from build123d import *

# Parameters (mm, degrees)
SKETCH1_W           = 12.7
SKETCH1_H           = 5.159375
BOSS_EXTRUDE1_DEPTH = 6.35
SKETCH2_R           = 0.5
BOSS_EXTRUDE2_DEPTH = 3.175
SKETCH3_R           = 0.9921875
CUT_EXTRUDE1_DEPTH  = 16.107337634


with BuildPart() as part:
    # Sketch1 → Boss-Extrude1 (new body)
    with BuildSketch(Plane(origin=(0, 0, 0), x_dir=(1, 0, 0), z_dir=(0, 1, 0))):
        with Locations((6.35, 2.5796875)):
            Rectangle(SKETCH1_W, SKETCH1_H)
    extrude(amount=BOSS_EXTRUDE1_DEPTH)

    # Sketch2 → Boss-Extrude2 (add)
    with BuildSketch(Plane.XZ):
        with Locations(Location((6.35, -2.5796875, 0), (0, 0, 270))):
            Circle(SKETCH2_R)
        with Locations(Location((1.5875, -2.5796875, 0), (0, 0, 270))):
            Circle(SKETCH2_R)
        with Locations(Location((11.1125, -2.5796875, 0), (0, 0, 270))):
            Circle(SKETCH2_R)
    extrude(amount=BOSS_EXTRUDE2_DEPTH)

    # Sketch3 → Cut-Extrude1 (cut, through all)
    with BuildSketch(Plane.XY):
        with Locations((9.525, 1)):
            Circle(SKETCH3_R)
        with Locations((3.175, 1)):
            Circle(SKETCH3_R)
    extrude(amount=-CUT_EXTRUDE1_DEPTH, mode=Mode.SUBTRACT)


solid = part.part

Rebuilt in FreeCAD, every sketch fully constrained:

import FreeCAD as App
import Part
import Sketcher
from FreeCAD import Vector
Q = App.Units.Quantity


def add_polygon(sketch, points):
    """Adds a closed chain of lines whose ends are joined by coincident constraints."""
    first, n = sketch.GeometryCount, len(points)
    for a, b in zip(points, points[1:] + points[:1]):
        sketch.addGeometry(Part.LineSegment(App.Vector(*a, 0), App.Vector(*b, 0)), False)
    for i in range(n):
        sketch.addConstraint(Sketcher.Constraint("Coincident", first + i, 2, first + (i + 1) % n, 1))

doc = App.newDocument("Part")
params = doc.addObject("Spreadsheet::Sheet", "Params")
for row, (alias, value) in enumerate([
    ("sketch1_width", "0.5 in"),
    ("sketch1_height", "0.203125 in"),
    ("pad1_length", "0.25 in"),
    ("pad2_length", "0.125 in"),
    ("sketch3_diameter", "0.078125 in"),
], start=1):
    params.set(f"A{row}", alias)
    params.set(f"B{row}", "=" + value)
    params.setAlias(f"B{row}", alias)

body = doc.addObject("PartDesign::Body", "Body")

sketch1 = body.newObject("Sketcher::SketchObject", "Sketch")
sketch1.AttachmentSupport = (doc.getObject("XZ_Plane"), [""])
sketch1.MapMode = "FlatFace"
add_polygon(sketch1, [(0, -5), (0, 0), (13, 0), (13, -5)])
sketch1.addConstraint([
    Sketcher.Constraint("Vertical", 0),
    Sketcher.Constraint("Horizontal", 1),
    Sketcher.Constraint("Vertical", 2),
    Sketcher.Constraint("Horizontal", 3),
    Sketcher.Constraint("Coincident", 0, 2, -1, 1),
    Sketcher.Constraint("DistanceX", 1, 1, 1, 2, Q("0.5 in")),
    Sketcher.Constraint("DistanceY", 0, 1, 0, 2, Q("0.203125 in")),
])
sketch1.setExpression("Constraints[9]", "Params.sketch1_width")
sketch1.setExpression("Constraints[10]", "Params.sketch1_height")
pad1 = body.newObject("PartDesign::Pad", "Pad")
pad1.Profile = sketch1
pad1.setExpression("Length", "Params.pad1_length")
pad1.Reversed = True

sketch2 = body.newObject("Sketcher::SketchObject", "Sketch001")
sketch2.AttachmentSupport = (doc.getObject("XZ_Plane"), [""])
sketch2.MapMode = "FlatFace"
sketch2.addGeometry([
    Part.Circle(Vector(6.3, -2.6, 0), Vector(0, 0, 1), 0.5),
    Part.Circle(Vector(1.6, -2.6, 0), Vector(0, 0, 1), 0.5),
    Part.Circle(Vector(11.1, -2.6, 0), Vector(0, 0, 1), 0.5),
], False)
sketch2.addConstraint([
    Sketcher.Constraint("Equal", 0, 1),
    Sketcher.Constraint("Equal", 1, 2),
    Sketcher.Constraint("Horizontal", 0, 3, 1, 3),
    Sketcher.Constraint("Horizontal", 1, 3, 2, 3),
    Sketcher.Constraint("Diameter", 0, Q("1 mm")),
    Sketcher.Constraint("DistanceX", -1, 1, 0, 3, Q("0.25 in")),
    Sketcher.Constraint("DistanceX", -1, 1, 1, 3, Q("0.0625 in")),
    Sketcher.Constraint("DistanceX", -1, 1, 2, 3, Q("0.4375 in")),
    Sketcher.Constraint("DistanceY", 0, 3, -1, 1, Q("2.579687 mm")),
])
pad2 = body.newObject("PartDesign::Pad", "Pad001")
pad2.Profile = sketch2
pad2.setExpression("Length", "Params.pad2_length")

sketch3 = body.newObject("Sketcher::SketchObject", "Sketch002")
sketch3.AttachmentSupport = (doc.getObject("XY_Plane"), [""])
sketch3.MapMode = "FlatFace"
sketch3.addGeometry([
    Part.Circle(Vector(9.5, 1, 0), Vector(0, 0, 1), 1),
    Part.Circle(Vector(3.2, 1, 0), Vector(0, 0, 1), 1),
], False)
sketch3.addConstraint([
    Sketcher.Constraint("Equal", 0, 1),
    Sketcher.Constraint("Horizontal", 0, 3, 1, 3),
    Sketcher.Constraint("Diameter", 0, Q("0.078125 in")),
    Sketcher.Constraint("DistanceX", 1, 3, 0, 3, Q("0.25 in")),
    Sketcher.Constraint("DistanceX", -1, 1, 0, 3, Q("0.375 in")),
    Sketcher.Constraint("DistanceY", -1, 1, 0, 3, Q("1 mm")),
])
sketch3.setExpression("Constraints[2]", "Params.sketch3_diameter")
pocket1 = body.newObject("PartDesign::Pocket", "Pocket")
pocket1.Profile = sketch3
pocket1.Type = "ThroughAll"

doc.recompute()
